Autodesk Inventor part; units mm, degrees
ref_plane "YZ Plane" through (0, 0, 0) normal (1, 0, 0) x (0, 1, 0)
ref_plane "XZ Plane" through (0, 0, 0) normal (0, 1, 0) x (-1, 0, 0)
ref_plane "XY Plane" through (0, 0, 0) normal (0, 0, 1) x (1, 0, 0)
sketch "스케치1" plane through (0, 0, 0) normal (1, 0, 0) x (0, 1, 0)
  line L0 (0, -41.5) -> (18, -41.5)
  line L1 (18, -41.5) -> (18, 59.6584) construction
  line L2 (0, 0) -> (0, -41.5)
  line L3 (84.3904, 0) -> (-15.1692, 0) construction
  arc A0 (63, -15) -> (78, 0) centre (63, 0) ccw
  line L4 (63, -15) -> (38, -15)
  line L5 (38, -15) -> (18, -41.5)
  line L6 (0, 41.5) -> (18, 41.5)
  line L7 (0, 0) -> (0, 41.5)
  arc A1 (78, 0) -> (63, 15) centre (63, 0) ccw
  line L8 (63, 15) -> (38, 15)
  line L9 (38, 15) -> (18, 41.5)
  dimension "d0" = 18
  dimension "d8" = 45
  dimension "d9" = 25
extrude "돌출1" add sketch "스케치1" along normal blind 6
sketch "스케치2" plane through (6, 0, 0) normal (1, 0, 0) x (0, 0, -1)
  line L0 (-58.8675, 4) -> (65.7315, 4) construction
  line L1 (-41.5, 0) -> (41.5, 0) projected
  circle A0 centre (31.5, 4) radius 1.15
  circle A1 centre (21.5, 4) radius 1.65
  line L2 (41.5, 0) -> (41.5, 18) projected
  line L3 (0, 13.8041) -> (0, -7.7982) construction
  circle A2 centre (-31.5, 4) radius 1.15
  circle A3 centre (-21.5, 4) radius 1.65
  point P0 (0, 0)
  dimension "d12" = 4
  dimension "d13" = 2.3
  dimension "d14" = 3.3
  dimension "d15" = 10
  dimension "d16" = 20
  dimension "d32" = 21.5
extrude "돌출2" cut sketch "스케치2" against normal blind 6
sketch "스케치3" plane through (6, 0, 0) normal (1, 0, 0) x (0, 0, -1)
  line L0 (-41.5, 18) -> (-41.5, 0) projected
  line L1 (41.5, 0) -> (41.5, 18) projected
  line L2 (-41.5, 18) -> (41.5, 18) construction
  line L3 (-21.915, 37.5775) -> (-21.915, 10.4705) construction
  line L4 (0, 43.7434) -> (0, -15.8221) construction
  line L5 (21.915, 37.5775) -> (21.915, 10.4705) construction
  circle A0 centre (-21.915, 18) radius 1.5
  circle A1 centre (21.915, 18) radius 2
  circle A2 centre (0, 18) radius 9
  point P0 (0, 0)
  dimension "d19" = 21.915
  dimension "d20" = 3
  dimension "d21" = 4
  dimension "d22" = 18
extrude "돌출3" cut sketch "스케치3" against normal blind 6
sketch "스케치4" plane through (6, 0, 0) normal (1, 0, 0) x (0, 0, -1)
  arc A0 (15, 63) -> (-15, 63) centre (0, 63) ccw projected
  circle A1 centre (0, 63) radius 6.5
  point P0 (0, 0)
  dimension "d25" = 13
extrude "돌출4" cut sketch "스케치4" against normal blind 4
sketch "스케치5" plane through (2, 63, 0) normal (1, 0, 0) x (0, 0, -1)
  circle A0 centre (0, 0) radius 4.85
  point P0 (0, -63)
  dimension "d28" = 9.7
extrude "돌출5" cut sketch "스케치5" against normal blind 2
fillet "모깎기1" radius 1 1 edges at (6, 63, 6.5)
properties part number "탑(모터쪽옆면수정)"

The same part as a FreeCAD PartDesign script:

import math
import FreeCAD as App
import Part
import Sketcher
from FreeCAD import Vector


def edges_at(feature, points):
    """Names of the edges that pass closest to the given points."""
    edges = feature.Shape.Edges
    near = lambda p: min(range(len(edges)), key=lambda i: edges[i].distToShape(Part.Vertex(*p))[0])
    return sorted({f"Edge{near(p) + 1}" for p in points})

doc = App.newDocument("Part")
body = doc.addObject("PartDesign::Body", "Body")

# Sketch on YZ plane
sketch1 = doc.addObject("Sketcher::SketchObject", "Sketch")
body.addObject(sketch1)
sketch1.AttachmentSupport = (doc.YZ_Plane, [""])
sketch1.MapMode = "FlatFace"
sketch1.addGeometry(Part.LineSegment(Vector(0, 42, 0), Vector(0, -42, 0)), False)
sketch1.addGeometry(Part.LineSegment(Vector(0, -42, 0), Vector(18, -42, 0)), False)
sketch1.addGeometry(Part.LineSegment(Vector(18, -42, 0), Vector(38, -15, 0)), False)
sketch1.addGeometry(Part.LineSegment(Vector(38, -15, 0), Vector(63, -15, 0)), False)
sketch1.addGeometry(Part.ArcOfCircle(Part.Circle(Vector(63, 0, 0), Vector(0, 0, 1), 15), math.radians(-90), math.radians(90)), False)
sketch1.addGeometry(Part.LineSegment(Vector(63, 15, 0), Vector(38, 15, 0)), False)
sketch1.addGeometry(Part.LineSegment(Vector(38, 15, 0), Vector(18, 42, 0)), False)
sketch1.addGeometry(Part.LineSegment(Vector(18, 42, 0), Vector(0, 42, 0)), False)
sketch1.addConstraint(Sketcher.Constraint("Coincident", 0, 2, 1, 1))
sketch1.addConstraint(Sketcher.Constraint("Coincident", 1, 2, 2, 1))
sketch1.addConstraint(Sketcher.Constraint("Coincident", 2, 2, 3, 1))
sketch1.addConstraint(Sketcher.Constraint("Tangent", 3, 2, 4, 1))
sketch1.addConstraint(Sketcher.Constraint("Tangent", 4, 2, 5, 1))
sketch1.addConstraint(Sketcher.Constraint("Coincident", 5, 2, 6, 1))
sketch1.addConstraint(Sketcher.Constraint("Coincident", 6, 2, 7, 1))
sketch1.addConstraint(Sketcher.Constraint("Coincident", 7, 2, 0, 1))
sketch1.addConstraint(Sketcher.Constraint("Vertical", 0))
sketch1.addConstraint(Sketcher.Constraint("Horizontal", 1))
sketch1.addConstraint(Sketcher.Constraint("Horizontal", 3))
sketch1.addConstraint(Sketcher.Constraint("Horizontal", 5))
sketch1.addConstraint(Sketcher.Constraint("Horizontal", 7))
sketch1.addConstraint(Sketcher.Constraint("Symmetric", 0, 2, 7, 2, -1, 1))
sketch1.addConstraint(Sketcher.Constraint("Symmetric", 2, 2, 5, 2, -1))
sketch1.addConstraint(Sketcher.Constraint("Vertical", 1, 2, 6, 2))
sketch1.addConstraint(Sketcher.Constraint("DistanceX", 1, 1, 1, 2, 18.0))
sketch1.addConstraint(Sketcher.Constraint("DistanceX", 3, 1, 3, 2, 25.0))
sketch1.addConstraint(Sketcher.Constraint("Radius", 4, 15.0))
sketch1.addConstraint(Sketcher.Constraint("DistanceX", 1, 2, 4, 3, 45.0))
sketch1.addConstraint(Sketcher.Constraint("DistanceY", 0, 2, 0, 1, 83.0))
pad1 = doc.addObject("PartDesign::Pad", "Pad")
body.addObject(pad1)
pad1.Profile = sketch1
pad1.Length = 6

# Sketch on YZ plane
sketch2 = doc.addObject("Sketcher::SketchObject", "Sketch001")
body.addObject(sketch2)
sketch2.AttachmentSupport = (doc.YZ_Plane, [""])
sketch2.MapMode = "FlatFace"
sketch2.AttachmentOffset = App.Placement(Vector(0, 0, 6), App.Rotation())
sketch2.addGeometry(Part.Circle(Vector(4, -31.5, 0), Vector(0, 0, 1), 1.1), False)
sketch2.addGeometry(Part.Circle(Vector(4, -21.5, 0), Vector(0, 0, 1), 1.6), False)
sketch2.addGeometry(Part.Circle(Vector(4, 31.5, 0), Vector(0, 0, 1), 1.1), False)
sketch2.addGeometry(Part.Circle(Vector(4, 21.5, 0), Vector(0, 0, 1), 1.6), False)
sketch2.addConstraint(Sketcher.Constraint("Equal", 0, 2))
sketch2.addConstraint(Sketcher.Constraint("Equal", 1, 3))
sketch2.addConstraint(Sketcher.Constraint("Symmetric", 0, 3, 2, 3, -1))
sketch2.addConstraint(Sketcher.Constraint("Symmetric", 1, 3, 3, 3, -1))
sketch2.addConstraint(Sketcher.Constraint("Vertical", 0, 3, 1, 3))
sketch2.addConstraint(Sketcher.Constraint("Diameter", 0, 2.3))
sketch2.addConstraint(Sketcher.Constraint("Diameter", 1, 3.3))
sketch2.addConstraint(Sketcher.Constraint("DistanceX", -1, 1, 0, 3, 4.0))
sketch2.addConstraint(Sketcher.Constraint("DistanceY", 0, 3, 1, 3, 10.0))
sketch2.addConstraint(Sketcher.Constraint("DistanceY", 1, 3, -1, 1, 21.5))
pocket1 = doc.addObject("PartDesign::Pocket", "Pocket")
body.addObject(pocket1)
pocket1.Profile = sketch2
pocket1.Length = 6

# Sketch on YZ plane
sketch3 = doc.addObject("Sketcher::SketchObject", "Sketch002")
body.addObject(sketch3)
sketch3.AttachmentSupport = (doc.YZ_Plane, [""])
sketch3.MapMode = "FlatFace"
sketch3.AttachmentOffset = App.Placement(Vector(0, 0, 6), App.Rotation())
sketch3.addGeometry(Part.Circle(Vector(18, 21.9, 0), Vector(0, 0, 1), 1.5), False)
sketch3.addGeometry(Part.Circle(Vector(18, -21.9, 0), Vector(0, 0, 1), 2), False)
sketch3.addGeometry(Part.Circle(Vector(18, 0, 0), Vector(0, 0, 1), 9), False)
sketch3.addConstraint(Sketcher.Constraint("Symmetric", 0, 3, 1, 3, -1))
sketch3.addConstraint(Sketcher.Constraint("PointOnObject", 2, 3, -1))
sketch3.addConstraint(Sketcher.Constraint("Vertical", 1, 3, 2, 3))
sketch3.addConstraint(Sketcher.Constraint("Diameter", 0, 3.0))
sketch3.addConstraint(Sketcher.Constraint("Diameter", 1, 4.0))
sketch3.addConstraint(Sketcher.Constraint("Diameter", 2, 18.0))
sketch3.addConstraint(Sketcher.Constraint("DistanceX", -1, 1, 0, 3, 18.0))
sketch3.addConstraint(Sketcher.Constraint("DistanceY", -1, 1, 0, 3, 21.915))
pocket2 = doc.addObject("PartDesign::Pocket", "Pocket001")
body.addObject(pocket2)
pocket2.Profile = sketch3
pocket2.Length = 6

# Sketch on YZ plane
sketch4 = doc.addObject("Sketcher::SketchObject", "Sketch003")
body.addObject(sketch4)
sketch4.AttachmentSupport = (doc.YZ_Plane, [""])
sketch4.MapMode = "FlatFace"
sketch4.AttachmentOffset = App.Placement(Vector(0, 0, 6), App.Rotation())
sketch4.addGeometry(Part.Circle(Vector(63, 0, 0), Vector(0, 0, 1), 6), False)
sketch4.addConstraint(Sketcher.Constraint("PointOnObject", 0, 3, -1))
sketch4.addConstraint(Sketcher.Constraint("Diameter", 0, 13.0))
sketch4.addConstraint(Sketcher.Constraint("DistanceX", -1, 1, 0, 3, 63.0))
pocket3 = doc.addObject("PartDesign::Pocket", "Pocket002")
body.addObject(pocket3)
pocket3.Profile = sketch4
pocket3.Length = 4

# Sketch on YZ plane
sketch5 = doc.addObject("Sketcher::SketchObject", "Sketch004")
body.addObject(sketch5)
sketch5.AttachmentSupport = (doc.YZ_Plane, [""])
sketch5.MapMode = "FlatFace"
sketch5.AttachmentOffset = App.Placement(Vector(0, 0, 2), App.Rotation())
sketch5.addGeometry(Part.Circle(Vector(63, 0, 0), Vector(0, 0, 1), 4.8), False)
sketch5.addConstraint(Sketcher.Constraint("PointOnObject", 0, 3, -1))
sketch5.addConstraint(Sketcher.Constraint("Diameter", 0, 9.7))
sketch5.addConstraint(Sketcher.Constraint("DistanceX", -1, 1, 0, 3, 63.0))
pocket4 = doc.addObject("PartDesign::Pocket", "Pocket003")
body.addObject(pocket4)
pocket4.Profile = sketch5
pocket4.Length = 2
doc.recompute()

fillet = doc.addObject("PartDesign::Fillet", "Fillet")
body.addObject(fillet)
fillet.Base = (pocket4, edges_at(pocket4, [(6, 63, 6.5)]))
fillet.Radius = 1

doc.recompute()
